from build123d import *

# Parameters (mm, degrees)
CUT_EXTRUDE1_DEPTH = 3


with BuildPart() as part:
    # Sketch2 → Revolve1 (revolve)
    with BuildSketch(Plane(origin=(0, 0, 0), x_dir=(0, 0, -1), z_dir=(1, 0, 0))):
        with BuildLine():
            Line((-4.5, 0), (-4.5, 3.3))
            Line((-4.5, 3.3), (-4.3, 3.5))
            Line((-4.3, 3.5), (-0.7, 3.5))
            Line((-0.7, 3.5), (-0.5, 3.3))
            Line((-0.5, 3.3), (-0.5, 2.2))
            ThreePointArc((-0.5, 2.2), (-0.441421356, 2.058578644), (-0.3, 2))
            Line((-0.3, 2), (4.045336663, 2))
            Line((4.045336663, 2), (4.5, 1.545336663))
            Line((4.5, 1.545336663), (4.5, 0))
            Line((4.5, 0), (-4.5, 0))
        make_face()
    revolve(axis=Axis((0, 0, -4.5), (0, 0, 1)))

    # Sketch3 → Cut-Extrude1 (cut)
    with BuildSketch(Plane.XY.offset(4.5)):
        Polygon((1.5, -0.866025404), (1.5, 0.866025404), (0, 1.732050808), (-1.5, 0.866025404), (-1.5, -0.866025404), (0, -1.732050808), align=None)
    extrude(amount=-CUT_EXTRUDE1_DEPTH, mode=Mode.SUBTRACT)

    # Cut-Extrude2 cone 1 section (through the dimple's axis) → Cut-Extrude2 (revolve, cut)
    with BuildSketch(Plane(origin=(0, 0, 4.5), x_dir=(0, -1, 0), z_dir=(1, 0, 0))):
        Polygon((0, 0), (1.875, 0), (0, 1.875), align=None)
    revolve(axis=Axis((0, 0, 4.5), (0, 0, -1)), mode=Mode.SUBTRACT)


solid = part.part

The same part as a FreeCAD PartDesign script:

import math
import FreeCAD as App
import Part
import Sketcher

V = App.Vector
Q = App.Units.Quantity


def add_polygon(sketch, points):
    """Adds a closed chain of lines whose ends are joined by coincident constraints."""
    first, n = sketch.GeometryCount, len(points)
    for a, b in zip(points, points[1:] + points[:1]):
        sketch.addGeometry(Part.LineSegment(App.Vector(*a, 0), App.Vector(*b, 0)), False)
    for i in range(n):
        sketch.addConstraint(Sketcher.Constraint("Coincident", first + i, 2, first + (i + 1) % n, 1))

doc = App.newDocument("Part")
body = doc.addObject("PartDesign::Body", "Body")

sketch1 = doc.addObject("Sketcher::SketchObject", "Sketch")
body.addObject(sketch1)
sketch1.AttachmentSupport = (doc.YZ_Plane, [""])
sketch1.MapMode = "FlatFace"
sketch1.addGeometry(Part.LineSegment(V(3.3, 4.5, 0), V(0, 4.5, 0)), False)
sketch1.addGeometry(Part.LineSegment(V(0, 4.5, 0), V(0, -4.5, 0)), False)
sketch1.addGeometry(Part.LineSegment(V(0, -4.5, 0), V(1.55, -4.5, 0)), False)
sketch1.addGeometry(Part.LineSegment(V(1.55, -4.5, 0), V(2, -4.05, 0)), False)
sketch1.addGeometry(Part.LineSegment(V(2, -4.05, 0), V(2, 0.3, 0)), False)
sketch1.addGeometry(Part.ArcOfCircle(Part.Circle(V(2.2, 0.3, 0), V(0, 0, 1), 0.2), math.radians(90), math.radians(180)), False)
sketch1.addGeometry(Part.LineSegment(V(2.2, 0.5, 0), V(3.3, 0.5, 0)), False)
sketch1.addGeometry(Part.LineSegment(V(3.3, 0.5, 0), V(3.5, 0.7, 0)), False)
sketch1.addGeometry(Part.LineSegment(V(3.5, 0.7, 0), V(3.5, 4.3, 0)), False)
sketch1.addGeometry(Part.LineSegment(V(3.5, 4.3, 0), V(3.3, 4.5, 0)), False)
sketch1.addConstraint(Sketcher.Constraint("Coincident", 0, 2, 1, 1))
sketch1.addConstraint(Sketcher.Constraint("Coincident", 1, 2, 2, 1))
sketch1.addConstraint(Sketcher.Constraint("Coincident", 2, 2, 3, 1))
sketch1.addConstraint(Sketcher.Constraint("Coincident", 3, 2, 4, 1))
sketch1.addConstraint(Sketcher.Constraint("Tangent", 4, 2, 5, 2))
sketch1.addConstraint(Sketcher.Constraint("Tangent", 5, 1, 6, 1))
sketch1.addConstraint(Sketcher.Constraint("Coincident", 6, 2, 7, 1))
sketch1.addConstraint(Sketcher.Constraint("Coincident", 7, 2, 8, 1))
sketch1.addConstraint(Sketcher.Constraint("Coincident", 8, 2, 9, 1))
sketch1.addConstraint(Sketcher.Constraint("Coincident", 9, 2, 0, 1))
sketch1.addConstraint(Sketcher.Constraint("Horizontal", 0))
sketch1.addConstraint(Sketcher.Constraint("Vertical", 1))
sketch1.addConstraint(Sketcher.Constraint("Horizontal", 2))
sketch1.addConstraint(Sketcher.Constraint("Vertical", 4))
sketch1.addConstraint(Sketcher.Constraint("Horizontal", 6))
sketch1.addConstraint(Sketcher.Constraint("Vertical", 8))
sketch1.addConstraint(Sketcher.Constraint("Symmetric", 0, 2, 1, 2, -1, 1))
sketch1.addConstraint(Sketcher.Constraint("Parallel", 3, 7))
sketch1.addConstraint(Sketcher.Constraint("Perpendicular", 7, 9))
sketch1.addConstraint(Sketcher.Constraint("Vertical", 6, 2, 9, 2))
sketch1.addConstraint(Sketcher.Constraint("Equal", 7, 9))
sketch1.addConstraint(Sketcher.Constraint("Radius", 5, 0.2))
sketch1.addConstraint(Sketcher.Constraint("DistanceY", 1, 2, 1, 1, 9.0))
sketch1.addConstraint(Sketcher.Constraint("DistanceX", 0, 2, 0, 1, 3.3))
sketch1.addConstraint(Sketcher.Constraint("DistanceX", 6, 1, 6, 2, 1.1))
sketch1.addConstraint(Sketcher.Constraint("DistanceY", 8, 1, 8, 2, 3.6))
sketch1.addConstraint(Sketcher.Constraint("DistanceY", 5, 1, 0, 2, 4.0))
sketch1.addConstraint(Sketcher.Constraint("Distance", 3, 0.642991))
revolution = doc.addObject("PartDesign::Revolution", "Revolution")
body.addObject(revolution)
revolution.Profile = sketch1
revolution.ReferenceAxis = (sketch1, ["V_Axis"])
revolution.Angle = 360

sketch2 = doc.addObject("Sketcher::SketchObject", "Sketch001")
body.addObject(sketch2)
sketch2.AttachmentSupport = (doc.XY_Plane, [""])
sketch2.MapMode = "FlatFace"
sketch2.AttachmentOffset = App.Placement(V(0, 0, 4.5), App.Rotation())
add_polygon(sketch2, [(1.5, -0.9), (1.5, 0.9), (0, 1.7), (-1.5, 0.9), (-1.5, -0.9), (0, -1.7)])
sketch2.addConstraint(Sketcher.Constraint("Vertical", 0))
sketch2.addConstraint(Sketcher.Constraint("Vertical", 3))
sketch2.addConstraint(Sketcher.Constraint("Symmetric", 0, 2, 3, 2, -1, 1))
sketch2.addConstraint(Sketcher.Constraint("Symmetric", 1, 2, 4, 2, -1, 1))
sketch2.addConstraint(Sketcher.Constraint("PointOnObject", 1, 2, -2))
sketch2.addConstraint(Sketcher.Constraint("Parallel", 2, 5))
sketch2.addConstraint(Sketcher.Constraint("Horizontal", 0, 2, 2, 2))
sketch2.addConstraint(Sketcher.Constraint("Angle", 1, Q("150 deg")))
sketch2.addConstraint(Sketcher.Constraint("DistanceX", 2, 2, 0, 2, 3.0))
sketch2.addConstraint(Sketcher.Constraint("DistanceY", 0, 1, 0, 2, 1.732051))
pocket1 = doc.addObject("PartDesign::Pocket", "Pocket")
body.addObject(pocket1)
pocket1.Profile = sketch2
pocket1.Length = 3

sketch3 = doc.addObject("Sketcher::SketchObject", "Sketch002")
body.addObject(sketch3)
sketch3.AttachmentSupport = (doc.YZ_Plane, [""])
sketch3.MapMode = "FlatFace"
add_polygon(sketch3, [(0, 4.5), (-1.9, 4.5), (0, 2.6)])
sketch3.addConstraint(Sketcher.Constraint("Horizontal", 0))
sketch3.addConstraint(Sketcher.Constraint("Vertical", 2))
sketch3.addConstraint(Sketcher.Constraint("PointOnObject", 1, 2, -2))
sketch3.addConstraint(Sketcher.Constraint("Equal", 0, 2))
sketch3.addConstraint(Sketcher.Constraint("DistanceY", -1, 1, 0, 2, 4.5))
sketch3.addConstraint(Sketcher.Constraint("DistanceX", 0, 2, 0, 1, 1.875))
groove = doc.addObject("PartDesign::Groove", "Groove")
body.addObject(groove)
groove.Profile = sketch3
groove.ReferenceAxis = (sketch3, ["V_Axis"])
groove.Angle = 360

doc.recompute()
